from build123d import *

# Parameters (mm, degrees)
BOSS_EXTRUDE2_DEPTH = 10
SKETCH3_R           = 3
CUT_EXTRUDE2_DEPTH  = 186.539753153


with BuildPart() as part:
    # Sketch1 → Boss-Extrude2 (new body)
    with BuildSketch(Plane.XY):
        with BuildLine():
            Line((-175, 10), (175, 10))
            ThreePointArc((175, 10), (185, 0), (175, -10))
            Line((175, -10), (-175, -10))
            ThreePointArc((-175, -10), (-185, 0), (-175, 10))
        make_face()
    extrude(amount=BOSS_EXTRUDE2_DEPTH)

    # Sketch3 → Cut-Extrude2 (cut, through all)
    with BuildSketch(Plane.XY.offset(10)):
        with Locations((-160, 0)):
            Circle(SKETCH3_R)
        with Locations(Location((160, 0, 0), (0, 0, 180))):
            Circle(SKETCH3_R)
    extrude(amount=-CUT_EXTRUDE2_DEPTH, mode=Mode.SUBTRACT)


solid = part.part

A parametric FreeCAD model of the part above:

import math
import FreeCAD as App
import Part
import Sketcher
from FreeCAD import Vector
Q = App.Units.Quantity

doc = App.newDocument("Part")
body = doc.addObject("PartDesign::Body", "Body")

# Sketch on XY plane
sketch1 = body.newObject("Sketcher::SketchObject", "Sketch")
sketch1.AttachmentSupport = (doc.getObject("XY_Plane"), [""])
sketch1.MapMode = "FlatFace"
sketch1.addGeometry([
    Part.LineSegment(Vector(175, 10, 0), Vector(-175, 10, 0)),
    Part.ArcOfCircle(Part.Circle(Vector(-175, 0, 0), Vector(0, 0, 1), 10), math.radians(90), math.radians(270)),
    Part.LineSegment(Vector(-175, -10, 0), Vector(175, -10, 0)),
    Part.ArcOfCircle(Part.Circle(Vector(175, 0, 0), Vector(0, 0, 1), 10), math.radians(-90), math.radians(90)),
], False)
sketch1.addConstraint([
    Sketcher.Constraint("Tangent", 0, 2, 1, 1),
    Sketcher.Constraint("Tangent", 1, 2, 2, 1),
    Sketcher.Constraint("Tangent", 2, 2, 3, 1),
    Sketcher.Constraint("Tangent", 3, 2, 0, 1),
    Sketcher.Constraint("Horizontal", 0),
    Sketcher.Constraint("Horizontal", 2),
    Sketcher.Constraint("Symmetric", 1, 3, 3, 3, -1, 1),
    Sketcher.Constraint("Radius", 1, Q("10 mm")),
    Sketcher.Constraint("DistanceX", 0, 2, 0, 1, Q("350 mm")),
])
pad1 = body.newObject("PartDesign::Pad", "Pad")
pad1.Profile = sketch1
pad1.Length = 10

# Sketch on XY plane
sketch2 = body.newObject("Sketcher::SketchObject", "Sketch001")
sketch2.AttachmentSupport = (doc.getObject("XY_Plane"), [""])
sketch2.MapMode = "FlatFace"
sketch2.AttachmentOffset = App.Placement(Vector(0, 0, 10), App.Rotation())
sketch2.addGeometry([
    Part.Circle(Vector(-160, 0, 0), Vector(0, 0, 1), 3),
    Part.Circle(Vector(160, 0, 0), Vector(0, 0, 1), 3),
], False)
sketch2.addConstraint([
    Sketcher.Constraint("Equal", 0, 1),
    Sketcher.Constraint("Symmetric", 0, 3, 1, 3, -1, 1),
    Sketcher.Constraint("PointOnObject", 0, 3, -1),
    Sketcher.Constraint("Diameter", 0, Q("6 mm")),
    Sketcher.Constraint("DistanceX", 0, 3, -1, 1, Q("160 mm")),
])
pocket1 = body.newObject("PartDesign::Pocket", "Pocket")
pocket1.Profile = sketch2
pocket1.Type = "ThroughAll"

doc.recompute()
